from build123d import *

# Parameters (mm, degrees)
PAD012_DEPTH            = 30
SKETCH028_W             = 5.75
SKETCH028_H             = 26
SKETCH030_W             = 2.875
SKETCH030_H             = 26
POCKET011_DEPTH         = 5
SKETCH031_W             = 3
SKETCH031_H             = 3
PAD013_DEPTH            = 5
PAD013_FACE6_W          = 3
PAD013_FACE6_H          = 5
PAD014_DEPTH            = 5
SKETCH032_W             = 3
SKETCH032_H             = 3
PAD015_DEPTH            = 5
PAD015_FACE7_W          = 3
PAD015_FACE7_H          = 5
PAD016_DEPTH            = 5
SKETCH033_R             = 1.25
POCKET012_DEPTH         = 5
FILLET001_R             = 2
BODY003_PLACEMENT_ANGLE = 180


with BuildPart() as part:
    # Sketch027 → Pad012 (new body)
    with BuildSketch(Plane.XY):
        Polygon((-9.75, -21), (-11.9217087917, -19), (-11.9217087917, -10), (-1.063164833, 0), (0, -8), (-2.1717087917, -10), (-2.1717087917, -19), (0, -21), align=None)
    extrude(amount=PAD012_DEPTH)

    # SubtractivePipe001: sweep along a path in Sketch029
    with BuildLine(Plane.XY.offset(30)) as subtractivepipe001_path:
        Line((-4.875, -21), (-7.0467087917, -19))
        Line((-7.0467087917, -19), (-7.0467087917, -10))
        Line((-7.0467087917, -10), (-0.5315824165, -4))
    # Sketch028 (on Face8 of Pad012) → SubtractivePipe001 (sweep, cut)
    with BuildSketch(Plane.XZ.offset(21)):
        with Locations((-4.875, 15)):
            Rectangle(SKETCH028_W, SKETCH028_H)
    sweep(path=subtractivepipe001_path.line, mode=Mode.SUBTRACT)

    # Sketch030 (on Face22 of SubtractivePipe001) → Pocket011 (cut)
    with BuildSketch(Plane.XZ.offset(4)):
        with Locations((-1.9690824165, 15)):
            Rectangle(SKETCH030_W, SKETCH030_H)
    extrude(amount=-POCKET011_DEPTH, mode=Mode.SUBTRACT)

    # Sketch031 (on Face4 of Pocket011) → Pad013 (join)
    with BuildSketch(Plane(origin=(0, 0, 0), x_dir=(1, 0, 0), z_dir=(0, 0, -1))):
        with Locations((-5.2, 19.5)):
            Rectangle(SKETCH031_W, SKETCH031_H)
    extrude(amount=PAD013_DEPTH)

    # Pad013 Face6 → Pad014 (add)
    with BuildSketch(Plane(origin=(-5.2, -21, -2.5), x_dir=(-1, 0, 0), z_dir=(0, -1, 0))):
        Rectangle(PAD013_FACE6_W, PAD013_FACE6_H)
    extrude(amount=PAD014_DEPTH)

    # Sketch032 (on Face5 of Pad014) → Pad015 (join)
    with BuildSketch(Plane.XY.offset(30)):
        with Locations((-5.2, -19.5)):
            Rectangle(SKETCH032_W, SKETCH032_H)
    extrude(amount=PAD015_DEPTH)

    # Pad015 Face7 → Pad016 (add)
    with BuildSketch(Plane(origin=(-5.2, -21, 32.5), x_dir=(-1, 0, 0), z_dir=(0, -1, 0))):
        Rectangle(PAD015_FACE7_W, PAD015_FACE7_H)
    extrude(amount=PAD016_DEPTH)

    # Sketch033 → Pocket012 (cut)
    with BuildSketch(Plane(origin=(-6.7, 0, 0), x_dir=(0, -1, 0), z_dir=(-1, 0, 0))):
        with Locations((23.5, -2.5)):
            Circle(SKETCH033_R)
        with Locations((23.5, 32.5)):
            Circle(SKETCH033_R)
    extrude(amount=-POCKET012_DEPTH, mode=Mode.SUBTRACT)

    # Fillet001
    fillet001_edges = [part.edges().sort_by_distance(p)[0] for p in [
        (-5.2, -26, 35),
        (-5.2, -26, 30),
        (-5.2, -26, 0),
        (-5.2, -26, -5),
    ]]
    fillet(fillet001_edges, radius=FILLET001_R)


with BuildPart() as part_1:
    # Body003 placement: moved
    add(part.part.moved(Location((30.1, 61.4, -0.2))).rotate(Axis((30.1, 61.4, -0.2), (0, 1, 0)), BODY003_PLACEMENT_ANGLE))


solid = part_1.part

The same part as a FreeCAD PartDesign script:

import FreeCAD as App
import Part
import Sketcher
from FreeCAD import Vector
Q = App.Units.Quantity


def edges_at(feature, points):
    """Names of the edges that pass closest to the given points."""
    edges = feature.Shape.Edges
    near = lambda p: min(range(len(edges)), key=lambda i: edges[i].distToShape(Part.Vertex(*p))[0])
    return sorted({f"Edge{near(p) + 1}" for p in points})

doc = App.newDocument("Part")
body = doc.addObject("PartDesign::Body", "Body")

# Sketch on XY plane
sketch1 = body.newObject("Sketcher::SketchObject", "Sketch")
sketch1.AttachmentSupport = (doc.getObject("XY_Plane"), [""])
sketch1.MapMode = "FlatFace"
sketch1.addGeometry([
    Part.LineSegment(Vector(-11.921709, -19, 0), Vector(-9.75, -21, 0)),  # 0
    Part.LineSegment(Vector(-9.75, -21, 0), Vector(0, -21, 0)),  # 1
    Part.LineSegment(Vector(0, -21, 0), Vector(-2.171709, -19, 0)),  # 2
    Part.LineSegment(Vector(-2.171709, -19, 0), Vector(-2.171709, -10, 0)),  # 3
    Part.LineSegment(Vector(-2.171709, -10, 0), Vector(0, -8, 0)),  # 4
    Part.LineSegment(Vector(0, -8, 0), Vector(-1.063165, 0, 0)),  # 5
    Part.LineSegment(Vector(-1.063165, 0, 0), Vector(-11.921709, -10, 0)),  # 6
    Part.LineSegment(Vector(-11.921709, -10, 0), Vector(-11.921709, -19, 0)),  # 7
], False)
sketch1.addConstraint([
    Sketcher.Constraint("Coincident", 0, 2, 1, 1),
    Sketcher.Constraint("Coincident", 1, 2, 2, 1),
    Sketcher.Constraint("Coincident", 2, 2, 3, 1),
    Sketcher.Constraint("Coincident", 3, 2, 4, 1),
    Sketcher.Constraint("Coincident", 4, 2, 5, 1),
    Sketcher.Constraint("Coincident", 5, 2, 6, 1),
    Sketcher.Constraint("Coincident", 6, 2, 7, 1),
    Sketcher.Constraint("Coincident", 7, 2, 0, 1),
    Sketcher.Constraint("Horizontal", 1),
    Sketcher.Constraint("Vertical", 3),
    Sketcher.Constraint("Vertical", 7),
    Sketcher.Constraint("PointOnObject", 1, 2, -2),
    Sketcher.Constraint("PointOnObject", 4, 2, -2),
    Sketcher.Constraint("PointOnObject", 5, 2, -1),
    Sketcher.Constraint("Parallel", 0, 2),
    Sketcher.Constraint("Parallel", 4, 6),
    Sketcher.Constraint("Horizontal", 3, 2, 6, 2),
    Sketcher.Constraint("Horizontal", 2, 2, 7, 2),
    Sketcher.Constraint("Equal", 2, 4),
    Sketcher.Constraint("DistanceY", 3, 1, 3, 2, 9.0),
    Sketcher.Constraint("DistanceY", 0, 2, -1, 1, 21.0),
    Sketcher.Constraint("DistanceY", 2, 2, -1, 1, 19.0),
    Sketcher.Constraint("DistanceX", 1, 1, 1, 2, 9.75),
    Sketcher.Constraint("Angle", 5, Q("97.57 deg")),
])
pad1 = body.newObject("PartDesign::Pad", "Pad")
pad1.Profile = sketch1
pad1.Length = 30

# Sketch on XZ plane
sketch2 = body.newObject("Sketcher::SketchObject", "Sketch001")
sketch2.AttachmentSupport = (doc.getObject("XZ_Plane"), [""])
sketch2.MapMode = "FlatFace"
sketch2.AttachmentOffset = App.Placement(Vector(0, 0, 21), App.Rotation())
sketch2.addGeometry([
    Part.LineSegment(Vector(-7.75, 28, 0), Vector(-7.75, 2, 0)),
    Part.LineSegment(Vector(-7.75, 2, 0), Vector(-2, 2, 0)),
    Part.LineSegment(Vector(-2, 2, 0), Vector(-2, 28, 0)),
    Part.LineSegment(Vector(-2, 28, 0), Vector(-7.75, 28, 0)),
], False)
sketch2.addConstraint([
    Sketcher.Constraint("Coincident", 0, 2, 1, 1),
    Sketcher.Constraint("Coincident", 1, 2, 2, 1),
    Sketcher.Constraint("Coincident", 2, 2, 3, 1),
    Sketcher.Constraint("Coincident", 3, 2, 0, 1),
    Sketcher.Constraint("Vertical", 0),
    Sketcher.Constraint("Horizontal", 1),
    Sketcher.Constraint("Vertical", 2),
    Sketcher.Constraint("Horizontal", 3),
    Sketcher.Constraint("DistanceY", 0, 2, 0, 1, 26.0),
    Sketcher.Constraint("DistanceY", -1, 1, 0, 2, 2.0),
    Sketcher.Constraint("DistanceX", 1, 2, -1, 1, 2.0),
    Sketcher.Constraint("DistanceX", 1, 1, 1, 2, 5.75),
])

# Sketch on XY plane
sketch3 = body.newObject("Sketcher::SketchObject", "Sketch002")
sketch3.AttachmentSupport = (doc.getObject("XY_Plane"), [""])
sketch3.MapMode = "FlatFace"
sketch3.AttachmentOffset = App.Placement(Vector(0, 0, 30), App.Rotation())
sketch3.addGeometry([
    Part.LineSegment(Vector(-4.875, -21, 0), Vector(-7.046709, -19, 0)),
    Part.LineSegment(Vector(-7.046709, -19, 0), Vector(-7.046709, -10, 0)),
    Part.LineSegment(Vector(-7.046709, -10, 0), Vector(-0.531582, -4, 0)),
], False)
sketch3.addConstraint([
    Sketcher.Constraint("Coincident", 0, 2, 1, 1),
    Sketcher.Constraint("Coincident", 1, 2, 2, 1),
    Sketcher.Constraint("Vertical", 1),
    Sketcher.Constraint("DistanceY", 1, 1, 1, 2, 9.0),
    Sketcher.Constraint("DistanceY", 0, 1, -1, 1, 21.0),
    Sketcher.Constraint("DistanceY", 0, 2, -1, 1, 19.0),
    Sketcher.Constraint("DistanceY", 2, 2, -1, 1, 4.0),
    Sketcher.Constraint("DistanceX", 0, 1, -1, 1, 4.875),
    Sketcher.Constraint("Distance", 0, 2.952341),
    Sketcher.Constraint("Distance", 2, 8.857024),
])
doc.recompute()

subtractivepipe = body.newObject("PartDesign::SubtractivePipe", "SubtractivePipe")
subtractivepipe.Profile = sketch2
subtractivepipe.Spine = (sketch3, ["Edge1", "Edge2", "Edge3"])

# Sketch on XZ plane
sketch4 = body.newObject("Sketcher::SketchObject", "Sketch003")
sketch4.AttachmentSupport = (doc.getObject("XZ_Plane"), [""])
sketch4.MapMode = "FlatFace"
sketch4.AttachmentOffset = App.Placement(Vector(0, 0, 4), App.Rotation())
sketch4.addGeometry([
    Part.LineSegment(Vector(-3.406582, 28, 0), Vector(-3.406582, 2, 0)),
    Part.LineSegment(Vector(-3.406582, 2, 0), Vector(-0.531582, 2, 0)),
    Part.LineSegment(Vector(-0.531582, 2, 0), Vector(-0.531582, 28, 0)),
    Part.LineSegment(Vector(-0.531582, 28, 0), Vector(-3.406582, 28, 0)),
], False)
sketch4.addConstraint([
    Sketcher.Constraint("Coincident", 0, 2, 1, 1),
    Sketcher.Constraint("Coincident", 1, 2, 2, 1),
    Sketcher.Constraint("Coincident", 2, 2, 3, 1),
    Sketcher.Constraint("Coincident", 3, 2, 0, 1),
    Sketcher.Constraint("Vertical", 0),
    Sketcher.Constraint("Horizontal", 1),
    Sketcher.Constraint("Vertical", 2),
    Sketcher.Constraint("Horizontal", 3),
    Sketcher.Constraint("DistanceY", 0, 2, 0, 1, 26.0),
    Sketcher.Constraint("DistanceY", -1, 1, 0, 2, 2.0),
    Sketcher.Constraint("DistanceX", 1, 1, 1, 2, 2.875),
    Sketcher.Constraint("DistanceX", 0, 2, -1, 1, 3.406582),
])
pocket1 = body.newObject("PartDesign::Pocket", "Pocket")
pocket1.Profile = sketch4
pocket1.Length = 5

# Sketch on XY plane
sketch5 = body.newObject("Sketcher::SketchObject", "Sketch004")
sketch5.AttachmentSupport = (doc.getObject("XY_Plane"), [""])
sketch5.MapMode = "FlatFace"
sketch5.addGeometry([
    Part.LineSegment(Vector(-6.7, -21, 0), Vector(-6.7, -18, 0)),
    Part.LineSegment(Vector(-6.7, -18, 0), Vector(-3.7, -18, 0)),
    Part.LineSegment(Vector(-3.7, -18, 0), Vector(-3.7, -21, 0)),
    Part.LineSegment(Vector(-3.7, -21, 0), Vector(-6.7, -21, 0)),
], False)
sketch5.addConstraint([
    Sketcher.Constraint("Coincident", 0, 2, 1, 1),
    Sketcher.Constraint("Coincident", 1, 2, 2, 1),
    Sketcher.Constraint("Coincident", 2, 2, 3, 1),
    Sketcher.Constraint("Coincident", 3, 2, 0, 1),
    Sketcher.Constraint("Vertical", 0),
    Sketcher.Constraint("Horizontal", 1),
    Sketcher.Constraint("Vertical", 2),
    Sketcher.Constraint("Horizontal", 3),
    Sketcher.Constraint("Equal", 3, 0),
    Sketcher.Constraint("DistanceX", 1, 1, 1, 2, 3.0),
    Sketcher.Constraint("DistanceY", 0, 2, -1, 1, 18.0),
    Sketcher.Constraint("DistanceX", 0, 2, -1, 1, 6.7),
])
pad2 = body.newObject("PartDesign::Pad", "Pad001")
pad2.Profile = sketch5
pad2.Length = 5
pad2.Reversed = True

# Sketch on XZ plane
sketch6 = body.newObject("Sketcher::SketchObject", "Sketch005")
sketch6.AttachmentSupport = (doc.getObject("XZ_Plane"), [""])
sketch6.MapMode = "FlatFace"
sketch6.AttachmentOffset = App.Placement(Vector(0, 0, 21), App.Rotation())
sketch6.addGeometry([
    Part.LineSegment(Vector(-3.7, -5, 0), Vector(-3.7, 0, 0)),
    Part.LineSegment(Vector(-3.7, 0, 0), Vector(-6.7, 0, 0)),
    Part.LineSegment(Vector(-6.7, 0, 0), Vector(-6.7, -5, 0)),
    Part.LineSegment(Vector(-6.7, -5, 0), Vector(-3.7, -5, 0)),
], False)
sketch6.addConstraint([
    Sketcher.Constraint("Coincident", 0, 2, 1, 1),
    Sketcher.Constraint("Coincident", 1, 2, 2, 1),
    Sketcher.Constraint("Coincident", 2, 2, 3, 1),
    Sketcher.Constraint("Coincident", 3, 2, 0, 1),
    Sketcher.Constraint("Vertical", 0),
    Sketcher.Constraint("Horizontal", 1),
    Sketcher.Constraint("Vertical", 2),
    Sketcher.Constraint("Horizontal", 3),
    Sketcher.Constraint("PointOnObject", 0, 2, -1),
    Sketcher.Constraint("DistanceX", 1, 2, 1, 1, 3.0),
    Sketcher.Constraint("DistanceY", 0, 1, 0, 2, 5.0),
    Sketcher.Constraint("DistanceX", 0, 2, -1, 1, 3.7),
])
pad3 = body.newObject("PartDesign::Pad", "Pad002")
pad3.Profile = sketch6
pad3.Length = 5

# Sketch on XY plane
sketch7 = body.newObject("Sketcher::SketchObject", "Sketch006")
sketch7.AttachmentSupport = (doc.getObject("XY_Plane"), [""])
sketch7.MapMode = "FlatFace"
sketch7.AttachmentOffset = App.Placement(Vector(0, 0, 30), App.Rotation())
sketch7.addGeometry([
    Part.LineSegment(Vector(-6.7, -18, 0), Vector(-6.7, -21, 0)),
    Part.LineSegment(Vector(-6.7, -21, 0), Vector(-3.7, -21, 0)),
    Part.LineSegment(Vector(-3.7, -21, 0), Vector(-3.7, -18, 0)),
    Part.LineSegment(Vector(-3.7, -18, 0), Vector(-6.7, -18, 0)),
], False)
sketch7.addConstraint([
    Sketcher.Constraint("Coincident", 0, 2, 1, 1),
    Sketcher.Constraint("Coincident", 1, 2, 2, 1),
    Sketcher.Constraint("Coincident", 2, 2, 3, 1),
    Sketcher.Constraint("Coincident", 3, 2, 0, 1),
    Sketcher.Constraint("Vertical", 0),
    Sketcher.Constraint("Horizontal", 1),
    Sketcher.Constraint("Vertical", 2),
    Sketcher.Constraint("Horizontal", 3),
    Sketcher.Constraint("Equal", 3, 0),
    Sketcher.Constraint("DistanceX", 1, 1, 1, 2, 3.0),
    Sketcher.Constraint("DistanceY", 0, 2, -1, 1, 21.0),
    Sketcher.Constraint("DistanceX", 0, 2, -1, 1, 6.7),
])
pad4 = body.newObject("PartDesign::Pad", "Pad003")
pad4.Profile = sketch7
pad4.Length = 5

# Sketch on XZ plane
sketch8 = body.newObject("Sketcher::SketchObject", "Sketch007")
sketch8.AttachmentSupport = (doc.getObject("XZ_Plane"), [""])
sketch8.MapMode = "FlatFace"
sketch8.AttachmentOffset = App.Placement(Vector(0, 0, 21), App.Rotation())
sketch8.addGeometry([
    Part.LineSegment(Vector(-3.7, 30, 0), Vector(-3.7, 35, 0)),
    Part.LineSegment(Vector(-3.7, 35, 0), Vector(-6.7, 35, 0)),
    Part.LineSegment(Vector(-6.7, 35, 0), Vector(-6.7, 30, 0)),
    Part.LineSegment(Vector(-6.7, 30, 0), Vector(-3.7, 30, 0)),
], False)
sketch8.addConstraint([
    Sketcher.Constraint("Coincident", 0, 2, 1, 1),
    Sketcher.Constraint("Coincident", 1, 2, 2, 1),
    Sketcher.Constraint("Coincident", 2, 2, 3, 1),
    Sketcher.Constraint("Coincident", 3, 2, 0, 1),
    Sketcher.Constraint("Vertical", 0),
    Sketcher.Constraint("Horizontal", 1),
    Sketcher.Constraint("Vertical", 2),
    Sketcher.Constraint("Horizontal", 3),
    Sketcher.Constraint("DistanceX", 1, 2, 1, 1, 3.0),
    Sketcher.Constraint("DistanceY", 0, 1, 0, 2, 5.0),
    Sketcher.Constraint("DistanceY", -1, 1, 0, 2, 35.0),
    Sketcher.Constraint("DistanceX", 0, 2, -1, 1, 3.7),
])
pad5 = body.newObject("PartDesign::Pad", "Pad004")
pad5.Profile = sketch8
pad5.Length = 5

# Sketch on YZ plane
sketch9 = body.newObject("Sketcher::SketchObject", "Sketch008")
sketch9.AttachmentSupport = (doc.getObject("YZ_Plane"), [""])
sketch9.MapMode = "FlatFace"
sketch9.AttachmentOffset = App.Placement(Vector(0, 0, -6.7), App.Rotation())
sketch9.addGeometry([
    Part.Circle(Vector(-23.5, -2.5, 0), Vector(0, 0, 1), 1.25),
    Part.Circle(Vector(-23.5, 32.5, 0), Vector(0, 0, 1), 1.25),
], False)
sketch9.addConstraint([
    Sketcher.Constraint("Equal", 0, 1),
    Sketcher.Constraint("Vertical", 0, 3, 1, 3),
    Sketcher.Constraint("Diameter", 0, 2.5),
    Sketcher.Constraint("DistanceY", 0, 3, 1, 3, 35.0),
    Sketcher.Constraint("DistanceX", 0, 3, -1, 1, 23.5),
    Sketcher.Constraint("DistanceY", 0, 3, -1, 1, 2.5),
])
pocket2 = body.newObject("PartDesign::Pocket", "Pocket001")
pocket2.Profile = sketch9
pocket2.Length = 5
pocket2.Reversed = True
doc.recompute()

fillet = body.newObject("PartDesign::Fillet", "Fillet")
fillet.Base = (pocket2, edges_at(pocket2, [
    (-5.2, -26, 35),
    (-5.2, -26, 30),
    (-5.2, -26, 0),
    (-5.2, -26, -5),
]))
fillet.Radius = 2
body2 = doc.addObject("PartDesign::Body", "Body001")
doc.recompute()

body.Placement = App.Placement(Vector(30.1, 61.4, -0.2), App.Rotation(Vector(0, 1, 0), 180))
boolean = body2.newObject("PartDesign::Boolean", "Boolean")
boolean.Type = "Fuse"
boolean.addObjects([body])

doc.recompute()
